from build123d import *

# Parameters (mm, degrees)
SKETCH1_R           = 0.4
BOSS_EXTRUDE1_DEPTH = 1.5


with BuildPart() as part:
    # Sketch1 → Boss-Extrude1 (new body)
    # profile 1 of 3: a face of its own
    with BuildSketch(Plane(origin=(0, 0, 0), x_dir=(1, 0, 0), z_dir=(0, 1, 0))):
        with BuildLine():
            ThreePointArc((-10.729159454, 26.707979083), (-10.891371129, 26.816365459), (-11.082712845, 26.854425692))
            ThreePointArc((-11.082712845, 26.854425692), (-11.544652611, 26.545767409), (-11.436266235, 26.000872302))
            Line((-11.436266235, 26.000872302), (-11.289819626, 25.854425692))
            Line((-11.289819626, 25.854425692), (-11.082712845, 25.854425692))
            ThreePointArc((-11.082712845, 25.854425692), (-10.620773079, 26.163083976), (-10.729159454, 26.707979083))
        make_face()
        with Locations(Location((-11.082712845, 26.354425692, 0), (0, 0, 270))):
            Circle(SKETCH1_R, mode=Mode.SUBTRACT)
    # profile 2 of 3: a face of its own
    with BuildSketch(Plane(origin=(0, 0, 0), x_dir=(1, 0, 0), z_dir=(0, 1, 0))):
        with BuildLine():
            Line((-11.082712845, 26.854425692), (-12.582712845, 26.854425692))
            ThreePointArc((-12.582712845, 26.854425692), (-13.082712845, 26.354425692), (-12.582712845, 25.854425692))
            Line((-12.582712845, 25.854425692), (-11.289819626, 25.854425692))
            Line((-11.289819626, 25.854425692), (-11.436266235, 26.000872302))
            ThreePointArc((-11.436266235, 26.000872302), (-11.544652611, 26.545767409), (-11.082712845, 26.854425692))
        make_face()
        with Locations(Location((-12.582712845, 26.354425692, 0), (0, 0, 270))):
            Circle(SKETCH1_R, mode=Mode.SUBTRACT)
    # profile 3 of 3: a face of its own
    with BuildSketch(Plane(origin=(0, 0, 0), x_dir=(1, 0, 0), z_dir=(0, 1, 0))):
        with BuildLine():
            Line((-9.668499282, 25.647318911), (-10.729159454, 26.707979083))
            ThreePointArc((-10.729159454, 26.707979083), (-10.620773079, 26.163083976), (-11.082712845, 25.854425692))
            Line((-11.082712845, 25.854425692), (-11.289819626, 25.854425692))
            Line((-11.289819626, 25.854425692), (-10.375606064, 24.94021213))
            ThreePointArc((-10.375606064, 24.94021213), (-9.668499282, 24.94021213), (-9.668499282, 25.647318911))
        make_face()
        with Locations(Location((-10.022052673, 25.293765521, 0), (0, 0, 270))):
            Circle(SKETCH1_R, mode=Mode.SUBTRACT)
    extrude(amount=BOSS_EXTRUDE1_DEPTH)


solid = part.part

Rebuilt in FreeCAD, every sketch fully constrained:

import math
import FreeCAD as App
import Part
import Sketcher

V = App.Vector
Q = App.Units.Quantity

doc = App.newDocument("Part")
body = doc.addObject("PartDesign::Body", "Body")

# Sketch on XZ plane
sketch1 = body.newObject("Sketcher::SketchObject", "Sketch")
sketch1.AttachmentSupport = (doc.getObject("XZ_Plane"), [""])
sketch1.MapMode = "FlatFace"
sketch1.addGeometry(Part.ArcOfCircle(Part.Circle(V(-11.082713, -26.354426, 0), V(0, 0, 1), 0.5), math.radians(-90), math.radians(-45)), False)
sketch1.addGeometry(Part.LineSegment(V(-11.082713, -26.854426, 0), V(-12.582713, -26.854426, 0)), False)
sketch1.addGeometry(Part.ArcOfCircle(Part.Circle(V(-12.582713, -26.354426, 0), V(0, 0, 1), 0.5), math.radians(90), math.radians(270)), False)
sketch1.addGeometry(Part.LineSegment(V(-12.582713, -25.854426, 0), V(-11.28982, -25.854426, 0)), False)
sketch1.addGeometry(Part.LineSegment(V(-11.28982, -25.854426, 0), V(-10.375606, -24.940212, 0)), False)
sketch1.addGeometry(Part.ArcOfCircle(Part.Circle(V(-10.022053, -25.293766, 0), V(0, 0, 1), 0.5), math.radians(-45), math.radians(135)), False)
sketch1.addGeometry(Part.LineSegment(V(-9.668499, -25.647319, 0), V(-10.729159, -26.707979, 0)), False)
sketch1.addGeometry(Part.Circle(V(-11.082713, -26.354426, 0), V(0, 0, 1), 0.4), False)
sketch1.addGeometry(Part.Circle(V(-10.022053, -25.293766, 0), V(0, 0, 1), 0.4), False)
sketch1.addGeometry(Part.Circle(V(-12.582713, -26.354426, 0), V(0, 0, 1), 0.4), False)
sketch1.addConstraint(Sketcher.Constraint("Tangent", 0, 1, 1, 1))
sketch1.addConstraint(Sketcher.Constraint("Tangent", 1, 2, 2, 2))
sketch1.addConstraint(Sketcher.Constraint("Tangent", 2, 1, 3, 1))
sketch1.addConstraint(Sketcher.Constraint("Coincident", 3, 2, 4, 1))
sketch1.addConstraint(Sketcher.Constraint("Tangent", 4, 2, 5, 2))
sketch1.addConstraint(Sketcher.Constraint("Tangent", 5, 1, 6, 1))
sketch1.addConstraint(Sketcher.Constraint("Tangent", 6, 2, 0, 2))
sketch1.addConstraint(Sketcher.Constraint("Horizontal", 1))
sketch1.addConstraint(Sketcher.Constraint("Horizontal", 3))
sketch1.addConstraint(Sketcher.Constraint("Coincident", 7, 3, 0, 3))
sketch1.addConstraint(Sketcher.Constraint("Coincident", 8, 3, 5, 3))
sketch1.addConstraint(Sketcher.Constraint("Coincident", 9, 3, 2, 3))
sketch1.addConstraint(Sketcher.Constraint("Equal", 0, 2))
sketch1.addConstraint(Sketcher.Constraint("Equal", 2, 5))
sketch1.addConstraint(Sketcher.Constraint("Equal", 7, 8))
sketch1.addConstraint(Sketcher.Constraint("Equal", 8, 9))
sketch1.addConstraint(Sketcher.Constraint("Parallel", 4, 6))
sketch1.addConstraint(Sketcher.Constraint("Diameter", 7, Q("0.8 mm")))
sketch1.addConstraint(Sketcher.Constraint("Radius", 0, Q("0.5 mm")))
sketch1.addConstraint(Sketcher.Constraint("Angle", 4, Q("45 deg")))
sketch1.addConstraint(Sketcher.Constraint("DistanceX", 1, 2, 1, 1, Q("1.5 mm")))
sketch1.addConstraint(Sketcher.Constraint("Distance", 6, Q("1.5 mm")))
sketch1.addConstraint(Sketcher.Constraint("DistanceX", 5, 1, -1, 1, Q("9.668499 mm")))
sketch1.addConstraint(Sketcher.Constraint("DistanceY", 5, 1, -1, 1, Q("25.647319 mm")))
pad1 = body.newObject("PartDesign::Pad", "Pad")
pad1.Profile = sketch1
pad1.Length = 1.5
pad1.Reversed = True

doc.recompute()
